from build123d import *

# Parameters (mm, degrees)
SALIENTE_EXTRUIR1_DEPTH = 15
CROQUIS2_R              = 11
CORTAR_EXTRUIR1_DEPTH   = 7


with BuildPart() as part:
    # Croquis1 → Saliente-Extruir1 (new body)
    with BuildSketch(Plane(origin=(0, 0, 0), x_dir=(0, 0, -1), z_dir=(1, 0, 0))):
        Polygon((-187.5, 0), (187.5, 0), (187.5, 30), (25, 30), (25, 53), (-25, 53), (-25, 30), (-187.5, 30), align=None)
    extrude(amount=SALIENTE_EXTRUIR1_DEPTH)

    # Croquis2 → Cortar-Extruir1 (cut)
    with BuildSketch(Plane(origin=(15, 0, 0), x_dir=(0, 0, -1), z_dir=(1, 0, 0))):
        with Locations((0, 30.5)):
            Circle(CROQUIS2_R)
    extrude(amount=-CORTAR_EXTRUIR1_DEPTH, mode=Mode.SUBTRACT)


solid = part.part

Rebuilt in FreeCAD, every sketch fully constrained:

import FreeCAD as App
import Part
import Sketcher
from FreeCAD import Vector

doc = App.newDocument("Part")
params = doc.addObject("Spreadsheet::Sheet", "Params")
for row, (alias, value) in enumerate([
    ("sketch1_width", "30 mm"),
    ("sketch1_width2", "23 mm"),
    ("sketch1_height", "375 mm"),
    ("sketch1_height2", "50 mm"),
    ("pad1_length", "15 mm"),
    ("sketch2_diameter", "22 mm"),
    ("pocket1_length", "7 mm"),
], start=1):
    params.set(f"A{row}", alias)
    params.set(f"B{row}", "=" + value)
    params.setAlias(f"B{row}", alias)

body = doc.addObject("PartDesign::Body", "Body")

sketch1 = body.newObject("Sketcher::SketchObject", "Sketch")
sketch1.AttachmentSupport = (doc.getObject("YZ_Plane"), [""])
sketch1.MapMode = "FlatFace"
sketch1.addGeometry([
    Part.LineSegment(Vector(0, 187.5, 0), Vector(0, -187.5, 0)),
    Part.LineSegment(Vector(0, -187.5, 0), Vector(30, -187.5, 0)),
    Part.LineSegment(Vector(30, -187.5, 0), Vector(30, -25, 0)),
    Part.LineSegment(Vector(30, -25, 0), Vector(53, -25, 0)),
    Part.LineSegment(Vector(53, -25, 0), Vector(53, 25, 0)),
    Part.LineSegment(Vector(53, 25, 0), Vector(30, 25, 0)),
    Part.LineSegment(Vector(30, 25, 0), Vector(30, 187.5, 0)),
    Part.LineSegment(Vector(30, 187.5, 0), Vector(0, 187.5, 0)),
], False)
sketch1.addConstraint([
    Sketcher.Constraint("Coincident", 0, 2, 1, 1),
    Sketcher.Constraint("Coincident", 1, 2, 2, 1),
    Sketcher.Constraint("Coincident", 2, 2, 3, 1),
    Sketcher.Constraint("Coincident", 3, 2, 4, 1),
    Sketcher.Constraint("Coincident", 4, 2, 5, 1),
    Sketcher.Constraint("Coincident", 5, 2, 6, 1),
    Sketcher.Constraint("Coincident", 6, 2, 7, 1),
    Sketcher.Constraint("Coincident", 7, 2, 0, 1),
    Sketcher.Constraint("Vertical", 0),
    Sketcher.Constraint("Horizontal", 1),
    Sketcher.Constraint("Vertical", 2),
    Sketcher.Constraint("Horizontal", 3),
    Sketcher.Constraint("Vertical", 4),
    Sketcher.Constraint("Horizontal", 5),
    Sketcher.Constraint("Vertical", 6),
    Sketcher.Constraint("Horizontal", 7),
    Sketcher.Constraint("Symmetric", 0, 2, 7, 2, -1, 1),
    Sketcher.Constraint("Symmetric", 2, 2, 5, 2, -1),
    Sketcher.Constraint("DistanceX", 1, 1, 1, 2, 30.0),
    Sketcher.Constraint("DistanceX", 3, 1, 3, 2, 23.0),
    Sketcher.Constraint("DistanceY", 0, 2, 0, 1, 375.0),
    Sketcher.Constraint("DistanceY", 4, 1, 4, 2, 50.0),
])
sketch1.setExpression("Constraints[18]", "Params.sketch1_width")
sketch1.setExpression("Constraints[19]", "Params.sketch1_width2")
sketch1.setExpression("Constraints[20]", "Params.sketch1_height")
sketch1.setExpression("Constraints[21]", "Params.sketch1_height2")
pad1 = body.newObject("PartDesign::Pad", "Pad")
pad1.Profile = sketch1
pad1.setExpression("Length", "Params.pad1_length")

sketch2 = body.newObject("Sketcher::SketchObject", "Sketch001")
sketch2.AttachmentSupport = (doc.getObject("YZ_Plane"), [""])
sketch2.MapMode = "FlatFace"
sketch2.AttachmentOffset = App.Placement(Vector(0, 0, 15), App.Rotation())
sketch2.addGeometry(Part.Circle(Vector(30.5, 0, 0), Vector(0, 0, 1), 11), False)
sketch2.addConstraint([
    Sketcher.Constraint("PointOnObject", 0, 3, -1),
    Sketcher.Constraint("Diameter", 0, 22.0),
    Sketcher.Constraint("DistanceX", -1, 1, 0, 3, 30.5),
])
sketch2.setExpression("Constraints[1]", "Params.sketch2_diameter")
pocket1 = body.newObject("PartDesign::Pocket", "Pocket")
pocket1.Profile = sketch2
pocket1.setExpression("Length", "Params.pocket1_length")

doc.recompute()
